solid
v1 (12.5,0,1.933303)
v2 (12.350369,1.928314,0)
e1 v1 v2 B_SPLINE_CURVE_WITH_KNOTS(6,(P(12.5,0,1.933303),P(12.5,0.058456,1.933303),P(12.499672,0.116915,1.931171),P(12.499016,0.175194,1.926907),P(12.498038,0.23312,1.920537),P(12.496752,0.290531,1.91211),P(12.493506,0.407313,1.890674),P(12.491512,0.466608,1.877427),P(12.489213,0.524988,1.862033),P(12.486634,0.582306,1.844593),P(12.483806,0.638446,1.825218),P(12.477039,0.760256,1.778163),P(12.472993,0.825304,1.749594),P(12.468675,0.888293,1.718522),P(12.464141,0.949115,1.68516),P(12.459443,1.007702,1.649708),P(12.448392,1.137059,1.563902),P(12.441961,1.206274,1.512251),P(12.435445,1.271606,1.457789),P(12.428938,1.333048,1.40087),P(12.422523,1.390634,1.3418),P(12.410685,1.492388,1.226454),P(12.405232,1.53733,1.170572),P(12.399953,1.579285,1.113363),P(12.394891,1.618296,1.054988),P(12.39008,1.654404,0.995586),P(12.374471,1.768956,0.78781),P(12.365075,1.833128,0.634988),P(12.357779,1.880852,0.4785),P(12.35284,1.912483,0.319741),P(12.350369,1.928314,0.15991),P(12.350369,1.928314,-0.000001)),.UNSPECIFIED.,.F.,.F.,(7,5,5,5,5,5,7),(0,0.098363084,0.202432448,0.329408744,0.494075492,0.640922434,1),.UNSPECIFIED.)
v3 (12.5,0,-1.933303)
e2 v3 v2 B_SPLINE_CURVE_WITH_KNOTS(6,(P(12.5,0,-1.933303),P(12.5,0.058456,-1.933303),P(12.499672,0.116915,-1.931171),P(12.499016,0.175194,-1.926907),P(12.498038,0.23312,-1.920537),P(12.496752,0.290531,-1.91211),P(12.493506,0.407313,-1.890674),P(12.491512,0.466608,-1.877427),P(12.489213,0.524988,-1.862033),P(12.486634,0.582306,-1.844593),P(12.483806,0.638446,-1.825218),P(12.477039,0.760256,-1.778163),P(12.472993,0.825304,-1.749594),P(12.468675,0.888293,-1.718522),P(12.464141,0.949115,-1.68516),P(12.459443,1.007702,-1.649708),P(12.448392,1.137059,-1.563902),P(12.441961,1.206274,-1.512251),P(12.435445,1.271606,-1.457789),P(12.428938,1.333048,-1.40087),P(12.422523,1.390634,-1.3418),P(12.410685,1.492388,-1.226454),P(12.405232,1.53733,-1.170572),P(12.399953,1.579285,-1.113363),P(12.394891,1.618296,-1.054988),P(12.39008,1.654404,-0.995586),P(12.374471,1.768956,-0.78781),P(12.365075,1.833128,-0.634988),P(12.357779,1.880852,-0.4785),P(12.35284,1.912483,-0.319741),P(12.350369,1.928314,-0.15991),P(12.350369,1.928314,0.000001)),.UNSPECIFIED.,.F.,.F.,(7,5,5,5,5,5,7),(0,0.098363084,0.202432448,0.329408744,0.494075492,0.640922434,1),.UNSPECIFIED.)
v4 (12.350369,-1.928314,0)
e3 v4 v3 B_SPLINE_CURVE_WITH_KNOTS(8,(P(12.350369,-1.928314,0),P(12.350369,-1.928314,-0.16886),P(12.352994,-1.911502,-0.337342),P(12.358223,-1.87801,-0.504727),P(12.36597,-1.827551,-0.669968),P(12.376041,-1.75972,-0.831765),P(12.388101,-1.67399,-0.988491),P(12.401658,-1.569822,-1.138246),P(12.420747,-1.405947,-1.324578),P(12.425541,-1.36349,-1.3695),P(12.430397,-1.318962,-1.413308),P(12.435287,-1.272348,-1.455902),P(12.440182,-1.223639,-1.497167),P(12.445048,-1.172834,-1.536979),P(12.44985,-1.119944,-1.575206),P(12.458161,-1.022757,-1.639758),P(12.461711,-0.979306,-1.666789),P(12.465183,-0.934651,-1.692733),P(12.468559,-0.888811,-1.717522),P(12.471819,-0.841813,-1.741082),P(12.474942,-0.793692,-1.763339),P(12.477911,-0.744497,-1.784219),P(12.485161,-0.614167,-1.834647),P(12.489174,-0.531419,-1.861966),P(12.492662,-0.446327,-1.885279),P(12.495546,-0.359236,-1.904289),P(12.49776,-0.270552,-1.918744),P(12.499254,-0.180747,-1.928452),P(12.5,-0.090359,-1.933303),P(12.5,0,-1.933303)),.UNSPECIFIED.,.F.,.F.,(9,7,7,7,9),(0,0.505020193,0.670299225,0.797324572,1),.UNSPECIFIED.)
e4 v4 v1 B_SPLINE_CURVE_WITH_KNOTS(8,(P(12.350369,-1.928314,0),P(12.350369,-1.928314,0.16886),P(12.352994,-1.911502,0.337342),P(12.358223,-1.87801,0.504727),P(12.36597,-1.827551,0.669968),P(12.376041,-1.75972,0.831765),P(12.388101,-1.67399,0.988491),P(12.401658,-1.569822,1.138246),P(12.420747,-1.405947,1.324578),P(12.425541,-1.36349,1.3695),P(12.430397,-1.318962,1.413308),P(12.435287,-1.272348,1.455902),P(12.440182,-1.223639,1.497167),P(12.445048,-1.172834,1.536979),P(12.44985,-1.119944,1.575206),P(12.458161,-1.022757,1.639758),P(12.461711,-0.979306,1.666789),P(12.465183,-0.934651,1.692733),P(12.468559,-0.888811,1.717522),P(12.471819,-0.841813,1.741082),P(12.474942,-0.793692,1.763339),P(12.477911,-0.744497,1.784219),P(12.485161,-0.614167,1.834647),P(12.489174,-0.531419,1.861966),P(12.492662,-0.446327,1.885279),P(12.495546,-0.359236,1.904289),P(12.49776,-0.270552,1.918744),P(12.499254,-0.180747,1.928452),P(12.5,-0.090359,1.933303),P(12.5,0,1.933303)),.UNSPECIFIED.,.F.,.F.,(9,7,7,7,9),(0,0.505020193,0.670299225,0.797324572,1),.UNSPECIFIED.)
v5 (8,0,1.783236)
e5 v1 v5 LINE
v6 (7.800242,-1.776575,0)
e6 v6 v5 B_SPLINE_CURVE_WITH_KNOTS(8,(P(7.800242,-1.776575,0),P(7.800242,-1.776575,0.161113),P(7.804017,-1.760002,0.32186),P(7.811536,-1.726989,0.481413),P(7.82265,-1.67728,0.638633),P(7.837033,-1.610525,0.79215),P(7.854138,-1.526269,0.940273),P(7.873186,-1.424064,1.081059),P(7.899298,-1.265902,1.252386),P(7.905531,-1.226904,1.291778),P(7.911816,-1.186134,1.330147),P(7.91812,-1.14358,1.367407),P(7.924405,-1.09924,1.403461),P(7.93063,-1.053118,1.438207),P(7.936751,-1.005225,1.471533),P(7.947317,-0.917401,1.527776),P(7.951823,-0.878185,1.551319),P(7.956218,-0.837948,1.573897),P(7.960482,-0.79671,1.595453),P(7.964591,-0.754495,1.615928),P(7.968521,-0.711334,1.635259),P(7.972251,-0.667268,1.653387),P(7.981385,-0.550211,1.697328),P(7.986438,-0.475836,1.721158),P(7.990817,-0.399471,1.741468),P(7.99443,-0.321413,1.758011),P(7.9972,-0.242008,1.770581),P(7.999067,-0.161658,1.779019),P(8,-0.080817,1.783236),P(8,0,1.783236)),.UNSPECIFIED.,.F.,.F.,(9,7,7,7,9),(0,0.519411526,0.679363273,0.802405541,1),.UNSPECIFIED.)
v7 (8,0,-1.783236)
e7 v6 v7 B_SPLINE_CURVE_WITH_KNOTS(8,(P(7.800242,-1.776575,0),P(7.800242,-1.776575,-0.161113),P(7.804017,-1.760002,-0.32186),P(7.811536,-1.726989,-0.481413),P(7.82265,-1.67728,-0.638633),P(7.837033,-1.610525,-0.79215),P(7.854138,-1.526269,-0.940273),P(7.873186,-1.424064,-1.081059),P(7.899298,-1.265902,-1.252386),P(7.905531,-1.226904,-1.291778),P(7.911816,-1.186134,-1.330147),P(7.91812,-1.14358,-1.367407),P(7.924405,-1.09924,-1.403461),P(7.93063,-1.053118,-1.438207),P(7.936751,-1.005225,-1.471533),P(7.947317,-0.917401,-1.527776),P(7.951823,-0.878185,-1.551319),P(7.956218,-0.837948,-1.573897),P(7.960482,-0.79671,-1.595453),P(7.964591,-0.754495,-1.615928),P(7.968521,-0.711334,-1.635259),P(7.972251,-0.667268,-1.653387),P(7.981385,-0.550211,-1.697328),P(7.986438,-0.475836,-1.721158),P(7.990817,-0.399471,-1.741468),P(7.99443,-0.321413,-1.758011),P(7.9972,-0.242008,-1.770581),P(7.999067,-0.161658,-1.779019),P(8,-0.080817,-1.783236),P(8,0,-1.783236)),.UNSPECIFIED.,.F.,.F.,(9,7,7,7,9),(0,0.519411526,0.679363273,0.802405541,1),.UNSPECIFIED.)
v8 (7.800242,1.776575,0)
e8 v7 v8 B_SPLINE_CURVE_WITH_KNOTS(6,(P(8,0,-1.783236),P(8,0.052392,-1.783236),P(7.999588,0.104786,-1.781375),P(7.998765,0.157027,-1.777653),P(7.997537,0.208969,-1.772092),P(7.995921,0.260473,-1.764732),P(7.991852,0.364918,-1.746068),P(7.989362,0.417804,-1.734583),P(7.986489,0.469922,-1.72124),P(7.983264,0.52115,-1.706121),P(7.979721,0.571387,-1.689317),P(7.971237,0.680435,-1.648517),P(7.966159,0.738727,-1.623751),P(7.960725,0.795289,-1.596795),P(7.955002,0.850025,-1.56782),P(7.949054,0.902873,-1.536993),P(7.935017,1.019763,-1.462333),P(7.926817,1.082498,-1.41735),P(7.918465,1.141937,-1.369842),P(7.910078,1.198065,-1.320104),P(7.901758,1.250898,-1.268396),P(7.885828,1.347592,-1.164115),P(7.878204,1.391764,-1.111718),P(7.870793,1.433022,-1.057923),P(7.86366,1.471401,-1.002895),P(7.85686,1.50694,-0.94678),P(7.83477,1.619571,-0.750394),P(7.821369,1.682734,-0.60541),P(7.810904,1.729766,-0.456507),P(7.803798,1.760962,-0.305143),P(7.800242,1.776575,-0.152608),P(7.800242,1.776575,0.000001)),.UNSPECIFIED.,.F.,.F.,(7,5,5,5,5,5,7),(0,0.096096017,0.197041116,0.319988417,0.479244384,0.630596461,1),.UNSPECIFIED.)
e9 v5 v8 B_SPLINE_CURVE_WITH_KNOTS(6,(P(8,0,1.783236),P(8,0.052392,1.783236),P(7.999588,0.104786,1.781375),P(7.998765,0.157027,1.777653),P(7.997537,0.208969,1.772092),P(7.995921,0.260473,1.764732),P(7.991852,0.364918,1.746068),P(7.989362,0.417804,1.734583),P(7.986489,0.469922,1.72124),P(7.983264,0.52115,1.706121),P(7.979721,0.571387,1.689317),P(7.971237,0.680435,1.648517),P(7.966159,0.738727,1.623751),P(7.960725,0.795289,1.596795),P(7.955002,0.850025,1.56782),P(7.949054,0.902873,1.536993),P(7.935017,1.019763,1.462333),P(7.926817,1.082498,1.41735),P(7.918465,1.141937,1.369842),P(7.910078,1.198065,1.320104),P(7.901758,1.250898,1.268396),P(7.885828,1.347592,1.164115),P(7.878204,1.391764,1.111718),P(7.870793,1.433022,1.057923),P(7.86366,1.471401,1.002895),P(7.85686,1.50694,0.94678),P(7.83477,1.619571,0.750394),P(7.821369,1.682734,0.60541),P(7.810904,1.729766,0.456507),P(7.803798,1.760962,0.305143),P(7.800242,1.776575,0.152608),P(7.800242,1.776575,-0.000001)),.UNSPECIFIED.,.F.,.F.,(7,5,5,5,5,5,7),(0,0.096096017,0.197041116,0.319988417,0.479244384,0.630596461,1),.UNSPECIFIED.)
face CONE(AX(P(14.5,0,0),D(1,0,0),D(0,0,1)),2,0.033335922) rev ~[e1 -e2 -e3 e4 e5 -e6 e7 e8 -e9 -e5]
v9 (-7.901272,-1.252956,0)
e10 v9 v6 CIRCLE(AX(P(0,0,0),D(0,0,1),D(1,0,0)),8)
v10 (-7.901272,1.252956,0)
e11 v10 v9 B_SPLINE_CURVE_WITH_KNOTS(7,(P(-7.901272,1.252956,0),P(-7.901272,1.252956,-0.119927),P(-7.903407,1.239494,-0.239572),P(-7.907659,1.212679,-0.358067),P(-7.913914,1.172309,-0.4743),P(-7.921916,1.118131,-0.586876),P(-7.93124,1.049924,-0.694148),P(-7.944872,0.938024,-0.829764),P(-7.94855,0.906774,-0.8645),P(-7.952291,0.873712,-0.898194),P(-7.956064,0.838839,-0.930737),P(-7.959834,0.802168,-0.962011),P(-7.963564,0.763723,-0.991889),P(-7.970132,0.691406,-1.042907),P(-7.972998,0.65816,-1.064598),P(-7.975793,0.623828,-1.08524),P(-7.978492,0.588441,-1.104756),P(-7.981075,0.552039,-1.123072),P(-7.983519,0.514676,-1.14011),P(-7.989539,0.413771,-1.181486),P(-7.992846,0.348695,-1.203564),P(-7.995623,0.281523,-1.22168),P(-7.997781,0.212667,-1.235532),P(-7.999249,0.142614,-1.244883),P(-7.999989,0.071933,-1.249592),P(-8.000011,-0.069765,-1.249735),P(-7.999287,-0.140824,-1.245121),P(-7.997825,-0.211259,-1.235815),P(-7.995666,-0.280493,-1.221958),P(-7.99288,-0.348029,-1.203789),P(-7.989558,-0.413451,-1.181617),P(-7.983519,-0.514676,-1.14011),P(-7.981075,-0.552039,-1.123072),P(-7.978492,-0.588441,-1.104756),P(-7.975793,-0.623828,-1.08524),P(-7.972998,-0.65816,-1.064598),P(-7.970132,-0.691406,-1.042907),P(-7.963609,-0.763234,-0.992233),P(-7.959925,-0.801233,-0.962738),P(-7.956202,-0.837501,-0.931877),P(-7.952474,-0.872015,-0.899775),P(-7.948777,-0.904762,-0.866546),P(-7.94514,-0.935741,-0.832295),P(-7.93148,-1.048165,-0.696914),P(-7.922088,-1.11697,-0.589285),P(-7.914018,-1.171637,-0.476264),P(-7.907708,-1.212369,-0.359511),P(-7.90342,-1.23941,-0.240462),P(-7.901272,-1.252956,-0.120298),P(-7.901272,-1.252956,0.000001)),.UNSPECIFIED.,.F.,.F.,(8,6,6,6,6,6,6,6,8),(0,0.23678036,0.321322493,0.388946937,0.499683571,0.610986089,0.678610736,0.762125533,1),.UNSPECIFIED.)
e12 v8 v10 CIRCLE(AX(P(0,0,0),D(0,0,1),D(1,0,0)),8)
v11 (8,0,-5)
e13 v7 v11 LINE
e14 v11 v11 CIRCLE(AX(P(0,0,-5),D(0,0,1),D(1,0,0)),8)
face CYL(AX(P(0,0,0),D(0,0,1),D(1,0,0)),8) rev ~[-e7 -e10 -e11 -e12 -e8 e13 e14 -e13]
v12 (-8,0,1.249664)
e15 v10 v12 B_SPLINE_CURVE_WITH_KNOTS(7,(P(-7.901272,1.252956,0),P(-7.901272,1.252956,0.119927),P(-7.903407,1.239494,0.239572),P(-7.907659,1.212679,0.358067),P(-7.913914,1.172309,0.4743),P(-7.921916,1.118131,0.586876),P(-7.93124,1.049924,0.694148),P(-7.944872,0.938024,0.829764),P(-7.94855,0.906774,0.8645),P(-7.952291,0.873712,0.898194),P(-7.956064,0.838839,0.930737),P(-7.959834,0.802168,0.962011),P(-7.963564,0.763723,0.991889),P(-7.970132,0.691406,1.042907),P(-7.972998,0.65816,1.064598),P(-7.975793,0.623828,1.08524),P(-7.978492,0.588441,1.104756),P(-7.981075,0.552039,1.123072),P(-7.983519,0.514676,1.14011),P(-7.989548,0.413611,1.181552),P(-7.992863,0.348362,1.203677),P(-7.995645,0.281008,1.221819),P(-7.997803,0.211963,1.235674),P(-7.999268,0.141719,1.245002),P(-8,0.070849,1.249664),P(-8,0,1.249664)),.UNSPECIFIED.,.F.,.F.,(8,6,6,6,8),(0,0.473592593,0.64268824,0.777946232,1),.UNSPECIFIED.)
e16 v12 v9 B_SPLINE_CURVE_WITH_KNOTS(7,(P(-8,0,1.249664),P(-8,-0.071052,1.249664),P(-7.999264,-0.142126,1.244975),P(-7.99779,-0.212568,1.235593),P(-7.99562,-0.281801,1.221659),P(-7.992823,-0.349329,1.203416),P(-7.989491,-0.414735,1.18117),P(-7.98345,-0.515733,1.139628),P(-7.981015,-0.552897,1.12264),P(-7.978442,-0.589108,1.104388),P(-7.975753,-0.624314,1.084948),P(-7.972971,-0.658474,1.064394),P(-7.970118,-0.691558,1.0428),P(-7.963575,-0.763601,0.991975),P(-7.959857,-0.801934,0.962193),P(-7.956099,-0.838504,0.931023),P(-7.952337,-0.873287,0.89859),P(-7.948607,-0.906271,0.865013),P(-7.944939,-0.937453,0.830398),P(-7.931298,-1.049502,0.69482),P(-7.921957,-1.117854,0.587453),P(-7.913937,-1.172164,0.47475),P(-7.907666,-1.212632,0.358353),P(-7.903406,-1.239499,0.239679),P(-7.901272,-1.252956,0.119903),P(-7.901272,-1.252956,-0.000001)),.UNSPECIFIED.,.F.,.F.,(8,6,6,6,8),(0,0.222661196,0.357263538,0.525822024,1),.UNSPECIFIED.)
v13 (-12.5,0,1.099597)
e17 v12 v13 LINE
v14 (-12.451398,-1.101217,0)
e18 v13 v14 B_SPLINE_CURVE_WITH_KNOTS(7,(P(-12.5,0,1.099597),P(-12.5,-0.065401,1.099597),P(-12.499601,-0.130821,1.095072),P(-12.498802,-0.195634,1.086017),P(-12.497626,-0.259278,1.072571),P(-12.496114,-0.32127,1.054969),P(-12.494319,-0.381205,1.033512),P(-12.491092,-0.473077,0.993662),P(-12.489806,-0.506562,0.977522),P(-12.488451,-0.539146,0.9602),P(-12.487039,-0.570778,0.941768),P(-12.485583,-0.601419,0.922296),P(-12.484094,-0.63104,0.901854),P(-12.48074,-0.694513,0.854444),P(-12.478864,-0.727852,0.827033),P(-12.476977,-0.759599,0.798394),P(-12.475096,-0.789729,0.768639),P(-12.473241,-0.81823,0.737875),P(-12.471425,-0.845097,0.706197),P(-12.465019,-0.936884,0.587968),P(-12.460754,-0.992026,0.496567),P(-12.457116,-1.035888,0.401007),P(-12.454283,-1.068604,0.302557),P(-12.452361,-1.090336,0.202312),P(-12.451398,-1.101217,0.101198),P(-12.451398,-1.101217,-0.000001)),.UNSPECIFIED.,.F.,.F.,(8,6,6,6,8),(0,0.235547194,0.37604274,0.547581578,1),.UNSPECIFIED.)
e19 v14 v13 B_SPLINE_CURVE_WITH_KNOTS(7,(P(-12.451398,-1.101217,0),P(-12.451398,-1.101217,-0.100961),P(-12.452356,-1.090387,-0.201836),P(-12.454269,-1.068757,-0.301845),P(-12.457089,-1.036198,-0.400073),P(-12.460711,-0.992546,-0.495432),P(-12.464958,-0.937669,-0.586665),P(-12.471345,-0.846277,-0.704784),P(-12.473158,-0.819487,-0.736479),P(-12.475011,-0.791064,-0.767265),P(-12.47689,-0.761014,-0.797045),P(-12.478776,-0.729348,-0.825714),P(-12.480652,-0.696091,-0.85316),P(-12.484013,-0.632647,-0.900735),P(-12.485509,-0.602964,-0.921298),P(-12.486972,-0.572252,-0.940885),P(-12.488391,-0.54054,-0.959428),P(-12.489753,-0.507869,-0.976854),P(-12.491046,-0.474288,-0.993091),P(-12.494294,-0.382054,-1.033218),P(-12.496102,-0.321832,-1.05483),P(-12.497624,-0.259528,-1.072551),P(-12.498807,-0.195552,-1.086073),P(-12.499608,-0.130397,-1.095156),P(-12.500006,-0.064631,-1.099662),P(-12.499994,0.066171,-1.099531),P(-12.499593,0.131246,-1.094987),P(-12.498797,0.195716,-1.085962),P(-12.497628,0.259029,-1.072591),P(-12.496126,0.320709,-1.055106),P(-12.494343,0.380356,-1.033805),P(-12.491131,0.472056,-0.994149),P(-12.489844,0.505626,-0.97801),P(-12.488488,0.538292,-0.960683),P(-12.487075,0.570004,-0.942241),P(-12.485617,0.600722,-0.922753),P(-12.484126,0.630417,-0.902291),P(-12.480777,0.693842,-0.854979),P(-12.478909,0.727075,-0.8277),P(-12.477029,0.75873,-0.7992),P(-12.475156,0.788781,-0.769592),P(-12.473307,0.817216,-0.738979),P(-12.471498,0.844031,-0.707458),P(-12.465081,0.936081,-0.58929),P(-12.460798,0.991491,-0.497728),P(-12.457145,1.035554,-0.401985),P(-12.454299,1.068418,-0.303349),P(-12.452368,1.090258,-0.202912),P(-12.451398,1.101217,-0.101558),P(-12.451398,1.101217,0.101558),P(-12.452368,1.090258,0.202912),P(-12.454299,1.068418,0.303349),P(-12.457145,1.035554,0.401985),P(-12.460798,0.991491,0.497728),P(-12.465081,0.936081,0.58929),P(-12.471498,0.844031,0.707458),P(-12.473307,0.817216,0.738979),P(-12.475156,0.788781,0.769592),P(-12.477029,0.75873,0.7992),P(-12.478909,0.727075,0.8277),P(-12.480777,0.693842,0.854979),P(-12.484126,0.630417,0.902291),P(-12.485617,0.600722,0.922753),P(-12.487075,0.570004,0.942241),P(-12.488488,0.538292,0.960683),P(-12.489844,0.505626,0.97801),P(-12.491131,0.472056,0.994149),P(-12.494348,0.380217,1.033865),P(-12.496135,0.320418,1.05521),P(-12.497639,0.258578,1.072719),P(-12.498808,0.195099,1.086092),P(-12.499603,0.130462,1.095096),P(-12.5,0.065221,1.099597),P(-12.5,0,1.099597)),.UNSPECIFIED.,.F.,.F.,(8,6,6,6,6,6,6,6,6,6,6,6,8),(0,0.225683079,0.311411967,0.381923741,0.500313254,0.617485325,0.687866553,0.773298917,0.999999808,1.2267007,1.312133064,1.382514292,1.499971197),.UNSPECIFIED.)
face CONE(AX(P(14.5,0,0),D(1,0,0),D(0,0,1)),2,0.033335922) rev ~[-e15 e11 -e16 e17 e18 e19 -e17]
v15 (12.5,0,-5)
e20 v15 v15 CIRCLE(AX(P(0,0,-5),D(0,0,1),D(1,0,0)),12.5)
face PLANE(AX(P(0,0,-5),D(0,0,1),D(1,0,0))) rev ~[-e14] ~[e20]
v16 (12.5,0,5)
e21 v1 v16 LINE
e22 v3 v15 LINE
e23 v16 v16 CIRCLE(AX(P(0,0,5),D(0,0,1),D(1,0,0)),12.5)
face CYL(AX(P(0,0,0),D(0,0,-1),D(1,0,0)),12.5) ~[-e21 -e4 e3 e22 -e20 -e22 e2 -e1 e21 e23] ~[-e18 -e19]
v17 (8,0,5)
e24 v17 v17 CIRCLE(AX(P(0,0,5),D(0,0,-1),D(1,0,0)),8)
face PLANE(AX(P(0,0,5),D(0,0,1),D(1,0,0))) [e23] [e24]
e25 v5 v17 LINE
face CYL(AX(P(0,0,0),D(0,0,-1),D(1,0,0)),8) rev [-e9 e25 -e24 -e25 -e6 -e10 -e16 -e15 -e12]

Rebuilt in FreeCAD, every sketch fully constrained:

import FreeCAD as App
import Part
import Sketcher

V = App.Vector
Q = App.Units.Quantity

doc = App.newDocument("Part")
params = doc.addObject("Spreadsheet::Sheet", "Params")
for row, (alias, value) in enumerate([
    ("sketch1_diameter", "25 mm"),
    ("pad1_length", "10 mm"),
    ("sketch2_diameter", "16 mm"),
    ("pocket1_length", "61.0802 mm"),
    ("sketch3_width", "29 mm"),
    ("sketch3_height", "2 mm"),
    ("groove_angle", "360 deg"),
], start=1):
    params.set(f"A{row}", alias)
    params.set(f"B{row}", "=" + value)
    params.setAlias(f"B{row}", alias)

body = doc.addObject("PartDesign::Body", "Body")

# Sketch on XY plane
sketch1 = doc.addObject("Sketcher::SketchObject", "Sketch")
body.addObject(sketch1)
sketch1.AttachmentSupport = (doc.XY_Plane, [""])
sketch1.MapMode = "FlatFace"
sketch1.addGeometry(Part.Circle(V(0, 0, 0), V(0, 0, 1), 12), False)
sketch1.addConstraint([
    Sketcher.Constraint("Coincident", 0, 3, -1, 1),
    Sketcher.Constraint("Diameter", 0, Q("25 mm")),
])
sketch1.setExpression("Constraints[1]", "Params.sketch1_diameter")
pad1 = doc.addObject("PartDesign::Pad", "Pad")
body.addObject(pad1)
pad1.Profile = sketch1
pad1.setExpression("Length", "Params.pad1_length")
pad1.Midplane = True

# Sketch on XY plane
sketch2 = doc.addObject("Sketcher::SketchObject", "Sketch001")
body.addObject(sketch2)
sketch2.AttachmentSupport = (doc.XY_Plane, [""])
sketch2.MapMode = "FlatFace"
sketch2.addGeometry(Part.Circle(V(0, 0, 0), V(0, 0, 1), 8), False)
sketch2.addConstraint([
    Sketcher.Constraint("Coincident", 0, 3, -1, 1),
    Sketcher.Constraint("Diameter", 0, Q("16 mm")),
])
sketch2.setExpression("Constraints[1]", "Params.sketch2_diameter")
pocket1 = doc.addObject("PartDesign::Pocket", "Pocket")
body.addObject(pocket1)
pocket1.Profile = sketch2
pocket1.setExpression("Length", "Params.pocket1_length")
pocket1.Midplane = True

# Sketch on XZ plane
sketch3 = doc.addObject("Sketcher::SketchObject", "Sketch002")
body.addObject(sketch3)
sketch3.AttachmentSupport = (doc.XZ_Plane, [""])
sketch3.MapMode = "FlatFace"
sketch3.addGeometry([
    Part.LineSegment(V(-14.5, 0, 0), V(14.5, 0, 0)),
    Part.LineSegment(V(14.5, 0, 0), V(14.5, 2, 0)),
    Part.LineSegment(V(14.5, 2, 0), V(-14.5, 1, 0)),
    Part.LineSegment(V(-14.5, 1, 0), V(-14.5, 0, 0)),
], False)
sketch3.addConstraint([
    Sketcher.Constraint("Coincident", 0, 2, 1, 1),
    Sketcher.Constraint("Coincident", 1, 2, 2, 1),
    Sketcher.Constraint("Coincident", 2, 2, 3, 1),
    Sketcher.Constraint("Coincident", 3, 2, 0, 1),
    Sketcher.Constraint("Horizontal", 0),
    Sketcher.Constraint("Vertical", 1),
    Sketcher.Constraint("Vertical", 3),
    Sketcher.Constraint("Symmetric", 0, 2, 3, 2, -1, 1),
    Sketcher.Constraint("DistanceX", 0, 1, 0, 2, Q("29 mm")),
    Sketcher.Constraint("DistanceY", 1, 1, 1, 2, Q("2 mm")),
    Sketcher.Constraint("Angle", 2, Q("-178.09 deg")),
])
sketch3.setExpression("Constraints[8]", "Params.sketch3_width")
sketch3.setExpression("Constraints[9]", "Params.sketch3_height")
groove = doc.addObject("PartDesign::Groove", "Groove")
body.addObject(groove)
groove.Profile = sketch3
groove.ReferenceAxis = (sketch3, ["H_Axis"])
groove.setExpression("Angle", "Params.groove_angle")

doc.recompute()
